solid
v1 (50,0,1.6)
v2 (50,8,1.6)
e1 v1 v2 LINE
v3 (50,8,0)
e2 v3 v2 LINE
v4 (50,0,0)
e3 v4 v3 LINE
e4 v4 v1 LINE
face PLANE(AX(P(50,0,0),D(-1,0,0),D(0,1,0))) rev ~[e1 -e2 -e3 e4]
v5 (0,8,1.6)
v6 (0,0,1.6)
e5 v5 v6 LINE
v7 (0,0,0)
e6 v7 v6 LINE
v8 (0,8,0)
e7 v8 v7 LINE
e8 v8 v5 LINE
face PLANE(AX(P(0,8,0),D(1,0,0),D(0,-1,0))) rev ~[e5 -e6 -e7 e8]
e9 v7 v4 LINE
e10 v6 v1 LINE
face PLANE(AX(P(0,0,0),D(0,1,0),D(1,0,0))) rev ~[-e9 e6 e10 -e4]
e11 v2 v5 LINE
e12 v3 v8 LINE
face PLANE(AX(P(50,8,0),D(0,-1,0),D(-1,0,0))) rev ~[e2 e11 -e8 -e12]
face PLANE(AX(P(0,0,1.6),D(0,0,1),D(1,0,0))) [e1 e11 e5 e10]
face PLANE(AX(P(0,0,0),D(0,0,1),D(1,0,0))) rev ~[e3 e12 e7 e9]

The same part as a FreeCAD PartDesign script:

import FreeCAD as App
import Part
import Sketcher

V = App.Vector

doc = App.newDocument("Part")
body = doc.addObject("PartDesign::Body", "Body")

# Sketch on XY plane
sketch1 = body.newObject("Sketcher::SketchObject", "Sketch")
sketch1.AttachmentSupport = (doc.getObject("XY_Plane"), [""])
sketch1.MapMode = "FlatFace"
sketch1.addGeometry(Part.LineSegment(V(0, 8, 0), V(0, 0, 0)), False)
sketch1.addGeometry(Part.LineSegment(V(0, 0, 0), V(50, 0, 0)), False)
sketch1.addGeometry(Part.LineSegment(V(50, 0, 0), V(50, 8, 0)), False)
sketch1.addGeometry(Part.LineSegment(V(50, 8, 0), V(0, 8, 0)), False)
sketch1.addConstraint(Sketcher.Constraint("Coincident", 0, 2, 1, 1))
sketch1.addConstraint(Sketcher.Constraint("Coincident", 1, 2, 2, 1))
sketch1.addConstraint(Sketcher.Constraint("Coincident", 2, 2, 3, 1))
sketch1.addConstraint(Sketcher.Constraint("Coincident", 3, 2, 0, 1))
sketch1.addConstraint(Sketcher.Constraint("Vertical", 0))
sketch1.addConstraint(Sketcher.Constraint("Horizontal", 1))
sketch1.addConstraint(Sketcher.Constraint("Vertical", 2))
sketch1.addConstraint(Sketcher.Constraint("Horizontal", 3))
sketch1.addConstraint(Sketcher.Constraint("Coincident", 0, 2, -1, 1))
sketch1.addConstraint(Sketcher.Constraint("DistanceX", 1, 1, 1, 2, 50.0))
sketch1.addConstraint(Sketcher.Constraint("DistanceY", 0, 2, 0, 1, 8.0))
pad1 = body.newObject("PartDesign::Pad", "Pad")
pad1.Profile = sketch1
pad1.Length = 1.6

doc.recompute()
